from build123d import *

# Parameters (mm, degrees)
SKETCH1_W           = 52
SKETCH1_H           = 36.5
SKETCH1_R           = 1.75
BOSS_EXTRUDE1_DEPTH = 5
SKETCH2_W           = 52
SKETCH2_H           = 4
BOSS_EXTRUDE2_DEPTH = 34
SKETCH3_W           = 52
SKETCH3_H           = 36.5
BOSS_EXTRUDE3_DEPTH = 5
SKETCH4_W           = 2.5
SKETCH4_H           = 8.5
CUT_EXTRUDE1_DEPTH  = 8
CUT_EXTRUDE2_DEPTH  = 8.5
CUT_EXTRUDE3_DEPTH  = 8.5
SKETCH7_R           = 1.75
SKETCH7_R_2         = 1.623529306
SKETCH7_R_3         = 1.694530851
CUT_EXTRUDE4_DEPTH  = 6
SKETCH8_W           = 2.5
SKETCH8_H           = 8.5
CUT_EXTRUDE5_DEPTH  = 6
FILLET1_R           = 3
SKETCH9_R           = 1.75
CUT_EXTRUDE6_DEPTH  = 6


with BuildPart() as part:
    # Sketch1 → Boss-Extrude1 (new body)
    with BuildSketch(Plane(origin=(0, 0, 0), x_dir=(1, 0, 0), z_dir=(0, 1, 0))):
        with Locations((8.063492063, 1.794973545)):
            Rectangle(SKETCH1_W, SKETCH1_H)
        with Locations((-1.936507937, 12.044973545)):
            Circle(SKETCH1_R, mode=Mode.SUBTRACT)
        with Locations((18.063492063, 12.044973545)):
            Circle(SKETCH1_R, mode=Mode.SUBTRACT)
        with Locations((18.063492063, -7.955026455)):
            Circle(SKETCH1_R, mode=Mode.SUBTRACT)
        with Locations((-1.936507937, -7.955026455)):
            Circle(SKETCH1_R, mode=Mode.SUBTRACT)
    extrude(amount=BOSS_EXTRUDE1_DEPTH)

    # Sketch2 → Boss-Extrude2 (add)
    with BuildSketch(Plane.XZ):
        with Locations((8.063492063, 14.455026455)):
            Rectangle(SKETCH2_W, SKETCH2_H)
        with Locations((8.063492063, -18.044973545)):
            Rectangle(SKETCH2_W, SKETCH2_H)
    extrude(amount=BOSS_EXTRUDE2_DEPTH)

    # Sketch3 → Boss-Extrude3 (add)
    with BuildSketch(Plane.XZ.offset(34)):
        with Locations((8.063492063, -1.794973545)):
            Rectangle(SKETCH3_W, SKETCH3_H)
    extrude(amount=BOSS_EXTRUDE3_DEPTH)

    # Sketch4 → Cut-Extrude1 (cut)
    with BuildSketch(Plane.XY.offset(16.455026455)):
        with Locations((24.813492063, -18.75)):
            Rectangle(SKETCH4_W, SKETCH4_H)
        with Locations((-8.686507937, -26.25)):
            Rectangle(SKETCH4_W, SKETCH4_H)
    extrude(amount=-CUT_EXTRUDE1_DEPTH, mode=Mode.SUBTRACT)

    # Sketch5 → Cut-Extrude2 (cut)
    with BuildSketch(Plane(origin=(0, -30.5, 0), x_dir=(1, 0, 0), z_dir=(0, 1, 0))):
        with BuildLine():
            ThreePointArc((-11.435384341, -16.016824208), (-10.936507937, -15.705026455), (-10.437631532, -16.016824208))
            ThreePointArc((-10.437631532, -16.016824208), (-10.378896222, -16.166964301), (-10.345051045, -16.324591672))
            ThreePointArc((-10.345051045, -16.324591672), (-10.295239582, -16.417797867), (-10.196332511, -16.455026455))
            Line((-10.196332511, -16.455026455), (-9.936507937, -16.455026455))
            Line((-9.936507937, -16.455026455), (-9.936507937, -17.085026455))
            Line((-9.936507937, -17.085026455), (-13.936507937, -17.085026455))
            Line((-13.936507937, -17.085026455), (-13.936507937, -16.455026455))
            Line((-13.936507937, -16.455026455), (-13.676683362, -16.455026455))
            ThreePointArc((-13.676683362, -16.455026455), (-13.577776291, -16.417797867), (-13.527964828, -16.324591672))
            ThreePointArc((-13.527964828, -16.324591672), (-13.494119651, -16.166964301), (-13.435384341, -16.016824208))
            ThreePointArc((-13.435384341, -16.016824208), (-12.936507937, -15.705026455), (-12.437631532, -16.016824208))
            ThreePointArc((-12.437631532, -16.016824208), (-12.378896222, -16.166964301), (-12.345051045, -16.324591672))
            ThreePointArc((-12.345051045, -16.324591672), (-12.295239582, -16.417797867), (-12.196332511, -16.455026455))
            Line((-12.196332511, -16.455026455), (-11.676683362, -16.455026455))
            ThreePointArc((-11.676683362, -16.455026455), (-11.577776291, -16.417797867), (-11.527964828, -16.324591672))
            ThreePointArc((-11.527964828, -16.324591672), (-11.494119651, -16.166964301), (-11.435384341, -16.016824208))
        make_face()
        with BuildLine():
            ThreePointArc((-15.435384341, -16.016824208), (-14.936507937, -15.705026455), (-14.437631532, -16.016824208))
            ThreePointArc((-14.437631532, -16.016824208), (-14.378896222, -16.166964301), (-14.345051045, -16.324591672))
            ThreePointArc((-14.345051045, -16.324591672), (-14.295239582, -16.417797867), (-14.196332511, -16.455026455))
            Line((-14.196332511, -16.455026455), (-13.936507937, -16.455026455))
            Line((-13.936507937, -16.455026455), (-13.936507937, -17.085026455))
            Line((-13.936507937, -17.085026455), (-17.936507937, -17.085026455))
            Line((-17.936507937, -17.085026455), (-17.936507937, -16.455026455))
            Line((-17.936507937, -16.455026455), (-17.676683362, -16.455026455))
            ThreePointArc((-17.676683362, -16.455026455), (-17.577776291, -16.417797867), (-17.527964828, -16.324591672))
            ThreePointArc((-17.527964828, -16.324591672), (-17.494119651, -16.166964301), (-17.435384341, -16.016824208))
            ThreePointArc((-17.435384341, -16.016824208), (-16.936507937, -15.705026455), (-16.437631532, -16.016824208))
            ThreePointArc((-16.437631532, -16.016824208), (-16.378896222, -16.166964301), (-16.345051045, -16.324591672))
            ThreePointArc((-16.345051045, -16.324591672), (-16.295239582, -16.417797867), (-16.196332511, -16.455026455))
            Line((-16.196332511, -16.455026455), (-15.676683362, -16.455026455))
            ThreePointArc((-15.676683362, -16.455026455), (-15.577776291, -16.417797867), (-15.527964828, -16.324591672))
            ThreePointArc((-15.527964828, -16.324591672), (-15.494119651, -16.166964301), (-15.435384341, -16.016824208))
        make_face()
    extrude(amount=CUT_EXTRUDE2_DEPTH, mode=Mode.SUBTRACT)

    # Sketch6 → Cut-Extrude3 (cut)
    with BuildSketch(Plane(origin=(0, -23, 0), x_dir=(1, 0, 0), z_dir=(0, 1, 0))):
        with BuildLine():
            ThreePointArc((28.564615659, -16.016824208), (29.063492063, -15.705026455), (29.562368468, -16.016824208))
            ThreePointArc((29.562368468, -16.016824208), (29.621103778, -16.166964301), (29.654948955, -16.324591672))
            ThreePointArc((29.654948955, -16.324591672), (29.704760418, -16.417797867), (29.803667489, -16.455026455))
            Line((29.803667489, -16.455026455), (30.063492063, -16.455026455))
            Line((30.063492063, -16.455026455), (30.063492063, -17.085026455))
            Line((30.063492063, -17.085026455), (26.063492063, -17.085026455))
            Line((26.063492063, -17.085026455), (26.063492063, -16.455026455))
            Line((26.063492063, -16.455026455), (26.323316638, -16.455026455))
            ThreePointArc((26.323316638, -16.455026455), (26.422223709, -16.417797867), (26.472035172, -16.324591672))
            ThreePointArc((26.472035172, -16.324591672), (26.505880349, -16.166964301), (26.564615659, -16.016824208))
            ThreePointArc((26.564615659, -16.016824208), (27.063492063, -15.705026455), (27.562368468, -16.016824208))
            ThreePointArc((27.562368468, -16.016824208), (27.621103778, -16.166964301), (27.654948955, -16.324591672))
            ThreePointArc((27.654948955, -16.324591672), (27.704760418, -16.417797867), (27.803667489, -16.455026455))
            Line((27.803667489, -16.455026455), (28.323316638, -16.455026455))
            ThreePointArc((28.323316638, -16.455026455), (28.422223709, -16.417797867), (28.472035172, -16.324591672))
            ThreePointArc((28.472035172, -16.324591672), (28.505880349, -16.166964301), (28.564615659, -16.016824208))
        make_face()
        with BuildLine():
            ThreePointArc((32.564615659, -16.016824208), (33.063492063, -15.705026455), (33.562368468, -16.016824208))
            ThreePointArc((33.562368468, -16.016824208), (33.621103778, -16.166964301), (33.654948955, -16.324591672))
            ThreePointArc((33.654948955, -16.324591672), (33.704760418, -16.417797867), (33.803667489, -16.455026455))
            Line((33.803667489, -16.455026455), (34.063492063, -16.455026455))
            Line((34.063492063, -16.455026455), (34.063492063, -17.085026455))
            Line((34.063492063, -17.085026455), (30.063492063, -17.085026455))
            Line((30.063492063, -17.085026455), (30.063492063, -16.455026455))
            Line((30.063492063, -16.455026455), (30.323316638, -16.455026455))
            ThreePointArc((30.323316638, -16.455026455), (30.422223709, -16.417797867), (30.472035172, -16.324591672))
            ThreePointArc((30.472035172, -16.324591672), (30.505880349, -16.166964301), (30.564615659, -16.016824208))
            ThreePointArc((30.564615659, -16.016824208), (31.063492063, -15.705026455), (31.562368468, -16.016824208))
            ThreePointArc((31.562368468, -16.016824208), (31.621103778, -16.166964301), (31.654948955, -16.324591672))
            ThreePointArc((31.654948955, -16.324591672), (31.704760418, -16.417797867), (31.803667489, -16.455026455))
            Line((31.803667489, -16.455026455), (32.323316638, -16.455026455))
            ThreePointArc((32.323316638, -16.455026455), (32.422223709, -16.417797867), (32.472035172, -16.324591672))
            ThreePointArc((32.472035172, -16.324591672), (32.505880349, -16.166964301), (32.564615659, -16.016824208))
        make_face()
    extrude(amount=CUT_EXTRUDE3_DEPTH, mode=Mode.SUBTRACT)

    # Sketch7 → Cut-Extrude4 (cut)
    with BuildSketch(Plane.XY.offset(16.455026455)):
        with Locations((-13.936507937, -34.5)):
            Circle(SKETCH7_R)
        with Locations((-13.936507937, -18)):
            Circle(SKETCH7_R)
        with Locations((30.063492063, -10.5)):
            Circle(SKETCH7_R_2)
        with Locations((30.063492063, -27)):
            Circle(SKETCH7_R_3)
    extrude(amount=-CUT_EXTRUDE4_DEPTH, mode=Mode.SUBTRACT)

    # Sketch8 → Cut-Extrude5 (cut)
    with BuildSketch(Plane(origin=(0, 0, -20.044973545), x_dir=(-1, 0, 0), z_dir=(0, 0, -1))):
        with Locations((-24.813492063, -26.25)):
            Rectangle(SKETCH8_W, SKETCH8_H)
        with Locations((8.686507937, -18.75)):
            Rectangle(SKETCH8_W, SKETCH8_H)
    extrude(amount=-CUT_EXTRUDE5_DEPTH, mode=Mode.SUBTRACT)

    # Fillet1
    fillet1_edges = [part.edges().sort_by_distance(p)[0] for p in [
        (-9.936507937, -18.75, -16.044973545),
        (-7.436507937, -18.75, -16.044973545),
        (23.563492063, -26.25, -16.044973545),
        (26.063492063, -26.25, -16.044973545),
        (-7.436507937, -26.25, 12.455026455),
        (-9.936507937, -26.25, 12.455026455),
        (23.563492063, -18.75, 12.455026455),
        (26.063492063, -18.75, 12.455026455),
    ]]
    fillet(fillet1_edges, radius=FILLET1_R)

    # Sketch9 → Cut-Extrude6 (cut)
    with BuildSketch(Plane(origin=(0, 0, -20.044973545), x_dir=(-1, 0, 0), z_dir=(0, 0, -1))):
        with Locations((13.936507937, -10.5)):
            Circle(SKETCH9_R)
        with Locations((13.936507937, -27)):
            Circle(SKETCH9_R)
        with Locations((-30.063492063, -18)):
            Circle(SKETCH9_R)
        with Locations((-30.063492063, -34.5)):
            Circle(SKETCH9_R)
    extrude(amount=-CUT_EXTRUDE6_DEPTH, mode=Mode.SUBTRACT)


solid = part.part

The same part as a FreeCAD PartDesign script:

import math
import FreeCAD as App
import Part
import Sketcher
from FreeCAD import Vector


def edges_at(feature, points):
    """Names of the edges that pass closest to the given points."""
    edges = feature.Shape.Edges
    near = lambda p: min(range(len(edges)), key=lambda i: edges[i].distToShape(Part.Vertex(*p))[0])
    return sorted({f"Edge{near(p) + 1}" for p in points})


def add_polygon(sketch, points):
    """Adds a closed chain of lines whose ends are joined by coincident constraints."""
    first, n = sketch.GeometryCount, len(points)
    for a, b in zip(points, points[1:] + points[:1]):
        sketch.addGeometry(Part.LineSegment(App.Vector(*a, 0), App.Vector(*b, 0)), False)
    for i in range(n):
        sketch.addConstraint(Sketcher.Constraint("Coincident", first + i, 2, first + (i + 1) % n, 1))

doc = App.newDocument("Part")
params = doc.addObject("Spreadsheet::Sheet", "Params")
for row, (alias, value) in enumerate([
    ("sketch1_diameter", "3.5 mm"),
    ("sketch1_width", "52 mm"),
    ("sketch1_height", "36.5 mm"),
    ("pad1_length", "5 mm"),
    ("sketch2_width", "52 mm"),
    ("sketch2_height", "4 mm"),
    ("pad2_length", "34 mm"),
    ("sketch3_width", "52 mm"),
    ("sketch3_height", "36.5 mm"),
    ("pad3_length", "5 mm"),
    ("sketch4_width", "2.5 mm"),
    ("sketch4_height", "8.5 mm"),
    ("pocket1_length", "8 mm"),
    ("sketch5_radius", "1 mm"),
    ("sketch5_width", "8 mm"),
    ("sketch5_radius2", "0.15 mm"),
    ("sketch5_height", "0.63 mm"),
    ("pocket2_length", "8.5 mm"),
    ("sketch6_radius", "1 mm"),
    ("sketch6_width", "8 mm"),
    ("sketch6_radius2", "0.15 mm"),
    ("sketch6_height", "0.63 mm"),
    ("pocket3_length", "8.5 mm"),
    ("sketch7_diameter", "3.5 mm"),
    ("pocket4_length", "6 mm"),
    ("sketch8_width", "2.5 mm"),
    ("sketch8_height", "8.5 mm"),
    ("pocket5_length", "6 mm"),
    ("fillet_radius", "3 mm"),
    ("sketch9_diameter", "3.5 mm"),
    ("pocket6_length", "6 mm"),
], start=1):
    params.set(f"A{row}", alias)
    params.set(f"B{row}", "=" + value)
    params.setAlias(f"B{row}", alias)

body = doc.addObject("PartDesign::Body", "Body")

# Sketch on XZ plane
sketch1 = body.newObject("Sketcher::SketchObject", "Sketch")
sketch1.AttachmentSupport = (doc.getObject("XZ_Plane"), [""])
sketch1.MapMode = "FlatFace"
add_polygon(sketch1, [(-17.9, -20), (-17.9, 16.5), (34.1, 16.5), (34.1, -20)])  # lines 0-3
sketch1.addGeometry(Part.Circle(Vector(-1.9, 8, 0), Vector(0, 0, 1), 1.8), False)  # 4
sketch1.addGeometry(Part.Circle(Vector(18.1, 8, 0), Vector(0, 0, 1), 1.8), False)  # 5
sketch1.addGeometry(Part.Circle(Vector(-1.9, -12, 0), Vector(0, 0, 1), 1.8), False)  # 6
sketch1.addGeometry(Part.Circle(Vector(18.1, -12, 0), Vector(0, 0, 1), 1.8), False)  # 7
sketch1.addConstraint([
    Sketcher.Constraint("Vertical", 0),
    Sketcher.Constraint("Horizontal", 1),
    Sketcher.Constraint("Vertical", 2),
    Sketcher.Constraint("Horizontal", 3),
    Sketcher.Constraint("Equal", 4, 5),
    Sketcher.Constraint("Equal", 5, 6),
    Sketcher.Constraint("Equal", 6, 7),
    Sketcher.Constraint("Horizontal", 4, 3, 5, 3),
    Sketcher.Constraint("Horizontal", 6, 3, 7, 3),
    Sketcher.Constraint("Vertical", 4, 3, 6, 3),
    Sketcher.Constraint("Vertical", 5, 3, 7, 3),
    Sketcher.Constraint("Diameter", 4, 3.5),
    Sketcher.Constraint("DistanceX", 1, 1, 1, 2, 52.0),
    Sketcher.Constraint("DistanceY", 0, 1, 0, 2, 36.5),
    Sketcher.Constraint("DistanceX", 4, 3, 5, 3, 20.0),
    Sketcher.Constraint("DistanceY", 6, 3, 4, 3, 20.0),
    Sketcher.Constraint("DistanceX", 0, 2, 4, 3, 16.0),
    Sketcher.Constraint("DistanceY", 2, 2, 7, 3, 8.0),
    Sketcher.Constraint("DistanceX", 4, 3, -1, 1, 1.936508),
    Sketcher.Constraint("DistanceY", -1, 1, 4, 3, 7.955026),
])
sketch1.setExpression("Constraints[15]", "Params.sketch1_diameter")
sketch1.setExpression("Constraints[16]", "Params.sketch1_width")
sketch1.setExpression("Constraints[17]", "Params.sketch1_height")
pad1 = body.newObject("PartDesign::Pad", "Pad")
pad1.Profile = sketch1
pad1.setExpression("Length", "Params.pad1_length")
pad1.Reversed = True

# Sketch on XZ plane
sketch2 = body.newObject("Sketcher::SketchObject", "Sketch001")
sketch2.AttachmentSupport = (doc.getObject("XZ_Plane"), [""])
sketch2.MapMode = "FlatFace"
add_polygon(sketch2, [(-17.9, 16.5), (-17.9, 12.5), (34.1, 12.5), (34.1, 16.5)])  # lines 0-3
add_polygon(sketch2, [(-17.9, -16), (-17.9, -20), (34.1, -20), (34.1, -16)])  # lines 4-7
sketch2.addConstraint([
    Sketcher.Constraint("Vertical", 0),
    Sketcher.Constraint("Horizontal", 1),
    Sketcher.Constraint("Vertical", 2),
    Sketcher.Constraint("Horizontal", 3),
    Sketcher.Constraint("Vertical", 4),
    Sketcher.Constraint("Horizontal", 5),
    Sketcher.Constraint("Vertical", 6),
    Sketcher.Constraint("Horizontal", 7),
    Sketcher.Constraint("Vertical", 3, 2, 4, 2),
    Sketcher.Constraint("Vertical", 2, 2, 5, 2),
    Sketcher.Constraint("Equal", 2, 4),
    Sketcher.Constraint("DistanceX", 1, 1, 1, 2, 52.0),
    Sketcher.Constraint("DistanceY", 0, 2, 0, 1, 4.0),
    Sketcher.Constraint("DistanceY", 4, 2, 0, 2, 32.5),
    Sketcher.Constraint("DistanceX", 0, 2, -1, 1, 17.936508),
    Sketcher.Constraint("DistanceY", -1, 1, 0, 2, 12.455026),
])
sketch2.setExpression("Constraints[19]", "Params.sketch2_width")
sketch2.setExpression("Constraints[20]", "Params.sketch2_height")
pad2 = body.newObject("PartDesign::Pad", "Pad001")
pad2.Profile = sketch2
pad2.setExpression("Length", "Params.pad2_length")

# Sketch on XZ plane
sketch3 = body.newObject("Sketcher::SketchObject", "Sketch002")
sketch3.AttachmentSupport = (doc.getObject("XZ_Plane"), [""])
sketch3.MapMode = "FlatFace"
sketch3.AttachmentOffset = App.Placement(Vector(0, 0, 34), App.Rotation())
add_polygon(sketch3, [(-18, 16), (-18, -20), (34, -20), (34, 16)])  # lines 0-3
sketch3.addConstraint([
    Sketcher.Constraint("Vertical", 0),
    Sketcher.Constraint("Horizontal", 1),
    Sketcher.Constraint("Vertical", 2),
    Sketcher.Constraint("Horizontal", 3),
    Sketcher.Constraint("DistanceX", 1, 1, 1, 2, 52.0),
    Sketcher.Constraint("DistanceY", 0, 2, 0, 1, 36.5),
    Sketcher.Constraint("DistanceX", 0, 2, -1, 1, 17.936508),
    Sketcher.Constraint("DistanceY", 0, 2, -1, 1, 20.044974),
])
sketch3.setExpression("Constraints[8]", "Params.sketch3_width")
sketch3.setExpression("Constraints[9]", "Params.sketch3_height")
pad3 = body.newObject("PartDesign::Pad", "Pad002")
pad3.Profile = sketch3
pad3.setExpression("Length", "Params.pad3_length")

# Sketch on XY plane
sketch4 = body.newObject("Sketcher::SketchObject", "Sketch003")
sketch4.AttachmentSupport = (doc.getObject("XY_Plane"), [""])
sketch4.MapMode = "FlatFace"
sketch4.AttachmentOffset = App.Placement(Vector(0, 0, 16.455026), App.Rotation())
add_polygon(sketch4, [(23.6, -14.5), (23.6, -23), (26.1, -23), (26.1, -14.5)])  # lines 0-3
add_polygon(sketch4, [(-9.9, -22), (-9.9, -30.5), (-7.4, -30.5), (-7.4, -22)])  # lines 4-7
sketch4.addConstraint([
    Sketcher.Constraint("Vertical", 0),
    Sketcher.Constraint("Horizontal", 1),
    Sketcher.Constraint("Vertical", 2),
    Sketcher.Constraint("Horizontal", 3),
    Sketcher.Constraint("Vertical", 4),
    Sketcher.Constraint("Horizontal", 5),
    Sketcher.Constraint("Vertical", 6),
    Sketcher.Constraint("Horizontal", 7),
    Sketcher.Constraint("Equal", 3, 5),
    Sketcher.Constraint("Equal", 2, 4),
    Sketcher.Constraint("DistanceX", 1, 1, 1, 2, 2.5),
    Sketcher.Constraint("DistanceY", 0, 2, 0, 1, 8.5),
    Sketcher.Constraint("DistanceY", 0, 2, -1, 1, 23.0),
    Sketcher.Constraint("DistanceY", 6, 2, -1, 1, 22.0),
    Sketcher.Constraint("DistanceX", 4, 2, 1, 2, 36.0),
    Sketcher.Constraint("DistanceX", -1, 1, 0, 2, 23.563492),
])
sketch4.setExpression("Constraints[18]", "Params.sketch4_width")
sketch4.setExpression("Constraints[19]", "Params.sketch4_height")
pocket1 = body.newObject("PartDesign::Pocket", "Pocket")
pocket1.Profile = sketch4
pocket1.setExpression("Length", "Params.pocket1_length")

# Sketch on XZ plane
sketch5 = body.newObject("Sketcher::SketchObject", "Sketch004")
sketch5.AttachmentSupport = (doc.getObject("XZ_Plane"), [""])
sketch5.MapMode = "FlatFace"
sketch5.AttachmentOffset = App.Placement(Vector(0, 0, 30.5), App.Rotation())
sketch5.addGeometry([
    Part.ArcOfCircle(Part.Circle(Vector(-10.94, 16.26, 0), Vector(0, 0, 1), 0.56), math.radians(-154), math.radians(-26)),  # 0
    Part.ArcOfCircle(Part.Circle(Vector(-10.54, 16.46, 0), Vector(0, 0, 1), 1), math.radians(-172.51), math.radians(-154.01)),  # 1
    Part.ArcOfCircle(Part.Circle(Vector(-11.68, 16.31, 0), Vector(0, 0, 1), 0.15), math.radians(7), math.radians(90)),  # 2
    Part.LineSegment(Vector(-11.68, 16.46, 0), Vector(-12.2, 16.46, 0)),  # 3
    Part.ArcOfCircle(Part.Circle(Vector(-12.2, 16.31, 0), Vector(0, 0, 1), 0.15), math.radians(90), math.radians(173)),  # 4
    Part.ArcOfCircle(Part.Circle(Vector(-13.34, 16.46, 0), Vector(0, 0, 1), 1), math.radians(-25.99), math.radians(-7.49)),  # 5
    Part.ArcOfCircle(Part.Circle(Vector(-12.94, 16.26, 0), Vector(0, 0, 1), 0.56), math.radians(-154), math.radians(-26)),  # 6
    Part.ArcOfCircle(Part.Circle(Vector(-12.54, 16.46, 0), Vector(0, 0, 1), 1), math.radians(-172.51), math.radians(-154.01)),  # 7
    Part.ArcOfCircle(Part.Circle(Vector(-13.68, 16.31, 0), Vector(0, 0, 1), 0.15), math.radians(7), math.radians(90)),  # 8
    Part.LineSegment(Vector(-13.68, 16.46, 0), Vector(-14.2, 16.46, 0)),  # 9
    Part.ArcOfCircle(Part.Circle(Vector(-14.2, 16.31, 0), Vector(0, 0, 1), 0.15), math.radians(90), math.radians(173)),  # 10
    Part.ArcOfCircle(Part.Circle(Vector(-15.34, 16.46, 0), Vector(0, 0, 1), 1), math.radians(-25.99), math.radians(-7.49)),  # 11
    Part.ArcOfCircle(Part.Circle(Vector(-14.94, 16.26, 0), Vector(0, 0, 1), 0.56), math.radians(-154), math.radians(-26)),  # 12
    Part.ArcOfCircle(Part.Circle(Vector(-14.54, 16.46, 0), Vector(0, 0, 1), 1), math.radians(-172.51), math.radians(-154.01)),  # 13
    Part.ArcOfCircle(Part.Circle(Vector(-15.68, 16.31, 0), Vector(0, 0, 1), 0.15), math.radians(7), math.radians(90)),  # 14
    Part.LineSegment(Vector(-15.68, 16.46, 0), Vector(-16.2, 16.46, 0)),  # 15
    Part.ArcOfCircle(Part.Circle(Vector(-16.2, 16.31, 0), Vector(0, 0, 1), 0.15), math.radians(90), math.radians(173)),  # 16
    Part.ArcOfCircle(Part.Circle(Vector(-17.34, 16.46, 0), Vector(0, 0, 1), 1), math.radians(-25.99), math.radians(-7.49)),  # 17
    Part.ArcOfCircle(Part.Circle(Vector(-16.94, 16.26, 0), Vector(0, 0, 1), 0.56), math.radians(-154), math.radians(-26)),  # 18
    Part.ArcOfCircle(Part.Circle(Vector(-16.54, 16.46, 0), Vector(0, 0, 1), 1), math.radians(-172.51), math.radians(-154.01)),  # 19
    Part.ArcOfCircle(Part.Circle(Vector(-17.68, 16.31, 0), Vector(0, 0, 1), 0.15), math.radians(7), math.radians(90)),  # 20
    Part.LineSegment(Vector(-17.68, 16.46, 0), Vector(-17.94, 16.46, 0)),  # 21
    Part.LineSegment(Vector(-17.94, 16.46, 0), Vector(-17.94, 17.09, 0)),  # 22
    Part.LineSegment(Vector(-17.94, 17.09, 0), Vector(-9.94, 17.09, 0)),  # 23
    Part.LineSegment(Vector(-9.94, 17.09, 0), Vector(-9.94, 16.46, 0)),  # 24
    Part.LineSegment(Vector(-9.94, 16.46, 0), Vector(-10.2, 16.46, 0)),  # 25
    Part.ArcOfCircle(Part.Circle(Vector(-10.2, 16.31, 0), Vector(0, 0, 1), 0.15), math.radians(90), math.radians(173)),  # 26
    Part.ArcOfCircle(Part.Circle(Vector(-11.34, 16.46, 0), Vector(0, 0, 1), 1), math.radians(-25.99), math.radians(-7.49)),  # 27
], False)
sketch5.addConstraint([
    Sketcher.Constraint("Tangent", 0, 1, 1, 2),
    Sketcher.Constraint("Tangent", 1, 1, 2, 1),
    Sketcher.Constraint("Tangent", 2, 2, 3, 1),
    Sketcher.Constraint("Tangent", 3, 2, 4, 1),
    Sketcher.Constraint("Tangent", 4, 2, 5, 2),
    Sketcher.Constraint("Tangent", 5, 1, 6, 2),
    Sketcher.Constraint("Tangent", 6, 1, 7, 2),
    Sketcher.Constraint("Tangent", 7, 1, 8, 1),
    Sketcher.Constraint("Tangent", 8, 2, 9, 1),
    Sketcher.Constraint("Tangent", 9, 2, 10, 1),
    Sketcher.Constraint("Tangent", 10, 2, 11, 2),
    Sketcher.Constraint("Tangent", 11, 1, 12, 2),
    Sketcher.Constraint("Tangent", 12, 1, 13, 2),
    Sketcher.Constraint("Tangent", 13, 1, 14, 1),
    Sketcher.Constraint("Tangent", 14, 2, 15, 1),
    Sketcher.Constraint("Tangent", 15, 2, 16, 1),
    Sketcher.Constraint("Tangent", 16, 2, 17, 2),
    Sketcher.Constraint("Tangent", 17, 1, 18, 2),
    Sketcher.Constraint("Tangent", 18, 1, 19, 2),
    Sketcher.Constraint("Tangent", 19, 1, 20, 1),
    Sketcher.Constraint("Tangent", 20, 2, 21, 1),
    Sketcher.Constraint("Coincident", 21, 2, 22, 1),
    Sketcher.Constraint("Coincident", 22, 2, 23, 1),
    Sketcher.Constraint("Coincident", 23, 2, 24, 1),
    Sketcher.Constraint("Coincident", 24, 2, 25, 1),
    Sketcher.Constraint("Tangent", 25, 2, 26, 1),
    Sketcher.Constraint("Tangent", 26, 2, 27, 2),
    Sketcher.Constraint("Tangent", 27, 1, 0, 2),
    Sketcher.Constraint("Horizontal", 3),
    Sketcher.Constraint("Horizontal", 9),
    Sketcher.Constraint("Horizontal", 15),
    Sketcher.Constraint("Horizontal", 21),
    Sketcher.Constraint("Vertical", 22),
    Sketcher.Constraint("Horizontal", 23),
    Sketcher.Constraint("Vertical", 24),
    Sketcher.Constraint("Horizontal", 25),
    Sketcher.Constraint("Equal", 2, 4),
    Sketcher.Constraint("Equal", 1, 5),
    Sketcher.Constraint("Equal", 0, 6),
    Sketcher.Constraint("Equal", 5, 7),
    Sketcher.Constraint("Equal", 4, 8),
    Sketcher.Constraint("Equal", 8, 10),
    Sketcher.Constraint("Equal", 7, 11),
    Sketcher.Constraint("Equal", 6, 12),
    Sketcher.Constraint("Equal", 11, 13),
    Sketcher.Constraint("Equal", 10, 14),
    Sketcher.Constraint("Equal", 14, 16),
    Sketcher.Constraint("Equal", 13, 17),
    Sketcher.Constraint("Equal", 12, 18),
    Sketcher.Constraint("Equal", 17, 19),
    Sketcher.Constraint("Equal", 16, 20),
    Sketcher.Constraint("Equal", 20, 26),
    Sketcher.Constraint("Equal", 19, 27),
    Sketcher.Constraint("Horizontal", 1, 3, 5, 3),
    Sketcher.Constraint("Horizontal", 0, 3, 6, 3),
    Sketcher.Constraint("Horizontal", 5, 3, 7, 3),
    Sketcher.Constraint("Horizontal", 4, 3, 8, 3),
    Sketcher.Constraint("Horizontal", 7, 3, 11, 3),
    Sketcher.Constraint("Horizontal", 6, 3, 12, 3),
    Sketcher.Constraint("Horizontal", 11, 3, 13, 3),
    Sketcher.Constraint("Horizontal", 10, 3, 14, 3),
    Sketcher.Constraint("Horizontal", 13, 3, 17, 3),
    Sketcher.Constraint("Horizontal", 12, 3, 18, 3),
    Sketcher.Constraint("Horizontal", 17, 3, 19, 3),
    Sketcher.Constraint("Horizontal", 16, 3, 20, 3),
    Sketcher.Constraint("Horizontal", 20, 3, 26, 3),
    Sketcher.Constraint("Horizontal", 19, 3, 27, 3),
    Sketcher.Constraint("Horizontal", 27, 3, 2, 2),
    Sketcher.Constraint("Equal", 3, 9),
    Sketcher.Constraint("Equal", 9, 15),
    Sketcher.Constraint("Equal", 21, 25),
    Sketcher.Constraint("Radius", 1, 1.0),
    Sketcher.Constraint("DistanceX", 23, 1, 23, 2, 8.0),
    Sketcher.Constraint("Radius", 2, 0.15),
    Sketcher.Constraint("Radius", 0, 0.555),
    Sketcher.Constraint("DistanceX", 6, 3, 0, 3, 2.0),
    Sketcher.Constraint("DistanceY", 22, 1, 22, 2, 0.63),
    Sketcher.Constraint("DistanceX", 0, 3, 1, 3, 0.4),
    Sketcher.Constraint("DistanceY", -1, 1, 1, 1, 16.324592),
    Sketcher.Constraint("DistanceX", 4, 2, -1, 1, 12.345051),
])
sketch5.setExpression("Constraints[71]", "Params.sketch5_radius")
sketch5.setExpression("Constraints[72]", "Params.sketch5_width")
sketch5.setExpression("Constraints[73]", "Params.sketch5_radius2")
sketch5.setExpression("Constraints[76]", "Params.sketch5_height")
pocket2 = body.newObject("PartDesign::Pocket", "Pocket001")
pocket2.Profile = sketch5
pocket2.setExpression("Length", "Params.pocket2_length")

# Sketch on XZ plane
sketch6 = body.newObject("Sketcher::SketchObject", "Sketch005")
sketch6.AttachmentSupport = (doc.getObject("XZ_Plane"), [""])
sketch6.MapMode = "FlatFace"
sketch6.AttachmentOffset = App.Placement(Vector(0, 0, 23), App.Rotation())
sketch6.addGeometry([
    Part.ArcOfCircle(Part.Circle(Vector(29.06, 16.26, 0), Vector(0, 0, 1), 0.56), math.radians(-154), math.radians(-26)),  # 0
    Part.ArcOfCircle(Part.Circle(Vector(29.46, 16.46, 0), Vector(0, 0, 1), 1), math.radians(-172.51), math.radians(-154.01)),  # 1
    Part.ArcOfCircle(Part.Circle(Vector(28.32, 16.31, 0), Vector(0, 0, 1), 0.15), math.radians(7), math.radians(90)),  # 2
    Part.LineSegment(Vector(28.32, 16.46, 0), Vector(27.8, 16.46, 0)),  # 3
    Part.ArcOfCircle(Part.Circle(Vector(27.8, 16.31, 0), Vector(0, 0, 1), 0.15), math.radians(90), math.radians(173)),  # 4
    Part.ArcOfCircle(Part.Circle(Vector(26.66, 16.46, 0), Vector(0, 0, 1), 1), math.radians(-25.99), math.radians(-7.49)),  # 5
    Part.ArcOfCircle(Part.Circle(Vector(27.06, 16.26, 0), Vector(0, 0, 1), 0.56), math.radians(-154), math.radians(-26)),  # 6
    Part.ArcOfCircle(Part.Circle(Vector(27.46, 16.46, 0), Vector(0, 0, 1), 1), math.radians(-172.51), math.radians(-154.01)),  # 7
    Part.ArcOfCircle(Part.Circle(Vector(26.32, 16.31, 0), Vector(0, 0, 1), 0.15), math.radians(7), math.radians(90)),  # 8
    Part.LineSegment(Vector(26.32, 16.46, 0), Vector(26.06, 16.46, 0)),  # 9
    Part.LineSegment(Vector(26.06, 16.46, 0), Vector(26.06, 17.09, 0)),  # 10
    Part.LineSegment(Vector(26.06, 17.09, 0), Vector(34.06, 17.09, 0)),  # 11
    Part.LineSegment(Vector(34.06, 17.09, 0), Vector(34.06, 16.46, 0)),  # 12
    Part.LineSegment(Vector(34.06, 16.46, 0), Vector(33.8, 16.46, 0)),  # 13
    Part.ArcOfCircle(Part.Circle(Vector(33.8, 16.31, 0), Vector(0, 0, 1), 0.15), math.radians(90), math.radians(173)),  # 14
    Part.ArcOfCircle(Part.Circle(Vector(32.66, 16.46, 0), Vector(0, 0, 1), 1), math.radians(-25.99), math.radians(-7.49)),  # 15
    Part.ArcOfCircle(Part.Circle(Vector(33.06, 16.26, 0), Vector(0, 0, 1), 0.56), math.radians(-154), math.radians(-26)),  # 16
    Part.ArcOfCircle(Part.Circle(Vector(33.46, 16.46, 0), Vector(0, 0, 1), 1), math.radians(-172.51), math.radians(-154.01)),  # 17
    Part.ArcOfCircle(Part.Circle(Vector(32.32, 16.31, 0), Vector(0, 0, 1), 0.15), math.radians(7), math.radians(90)),  # 18
    Part.LineSegment(Vector(32.32, 16.46, 0), Vector(31.8, 16.46, 0)),  # 19
    Part.ArcOfCircle(Part.Circle(Vector(31.8, 16.31, 0), Vector(0, 0, 1), 0.15), math.radians(90), math.radians(173)),  # 20
    Part.ArcOfCircle(Part.Circle(Vector(30.66, 16.46, 0), Vector(0, 0, 1), 1), math.radians(-25.99), math.radians(-7.49)),  # 21
    Part.ArcOfCircle(Part.Circle(Vector(31.06, 16.26, 0), Vector(0, 0, 1), 0.56), math.radians(-154), math.radians(-26)),  # 22
    Part.ArcOfCircle(Part.Circle(Vector(31.46, 16.46, 0), Vector(0, 0, 1), 1), math.radians(-172.51), math.radians(-154.01)),  # 23
    Part.ArcOfCircle(Part.Circle(Vector(30.32, 16.31, 0), Vector(0, 0, 1), 0.15), math.radians(7), math.radians(90)),  # 24
    Part.LineSegment(Vector(30.32, 16.46, 0), Vector(29.8, 16.46, 0)),  # 25
    Part.ArcOfCircle(Part.Circle(Vector(29.8, 16.31, 0), Vector(0, 0, 1), 0.15), math.radians(90), math.radians(173)),  # 26
    Part.ArcOfCircle(Part.Circle(Vector(28.66, 16.46, 0), Vector(0, 0, 1), 1), math.radians(-25.99), math.radians(-7.49)),  # 27
], False)
sketch6.addConstraint([
    Sketcher.Constraint("Tangent", 0, 1, 1, 2),
    Sketcher.Constraint("Tangent", 1, 1, 2, 1),
    Sketcher.Constraint("Tangent", 2, 2, 3, 1),
    Sketcher.Constraint("Tangent", 3, 2, 4, 1),
    Sketcher.Constraint("Tangent", 4, 2, 5, 2),
    Sketcher.Constraint("Tangent", 5, 1, 6, 2),
    Sketcher.Constraint("Tangent", 6, 1, 7, 2),
    Sketcher.Constraint("Tangent", 7, 1, 8, 1),
    Sketcher.Constraint("Tangent", 8, 2, 9, 1),
    Sketcher.Constraint("Coincident", 9, 2, 10, 1),
    Sketcher.Constraint("Coincident", 10, 2, 11, 1),
    Sketcher.Constraint("Coincident", 11, 2, 12, 1),
    Sketcher.Constraint("Coincident", 12, 2, 13, 1),
    Sketcher.Constraint("Tangent", 13, 2, 14, 1),
    Sketcher.Constraint("Tangent", 14, 2, 15, 2),
    Sketcher.Constraint("Tangent", 15, 1, 16, 2),
    Sketcher.Constraint("Tangent", 16, 1, 17, 2),
    Sketcher.Constraint("Tangent", 17, 1, 18, 1),
    Sketcher.Constraint("Tangent", 18, 2, 19, 1),
    Sketcher.Constraint("Tangent", 19, 2, 20, 1),
    Sketcher.Constraint("Tangent", 20, 2, 21, 2),
    Sketcher.Constraint("Tangent", 21, 1, 22, 2),
    Sketcher.Constraint("Tangent", 22, 1, 23, 2),
    Sketcher.Constraint("Tangent", 23, 1, 24, 1),
    Sketcher.Constraint("Tangent", 24, 2, 25, 1),
    Sketcher.Constraint("Tangent", 25, 2, 26, 1),
    Sketcher.Constraint("Tangent", 26, 2, 27, 2),
    Sketcher.Constraint("Tangent", 27, 1, 0, 2),
    Sketcher.Constraint("Horizontal", 3),
    Sketcher.Constraint("Horizontal", 9),
    Sketcher.Constraint("Vertical", 10),
    Sketcher.Constraint("Horizontal", 11),
    Sketcher.Constraint("Vertical", 12),
    Sketcher.Constraint("Horizontal", 13),
    Sketcher.Constraint("Horizontal", 19),
    Sketcher.Constraint("Horizontal", 25),
    Sketcher.Constraint("Equal", 2, 4),
    Sketcher.Constraint("Equal", 1, 5),
    Sketcher.Constraint("Equal", 0, 6),
    Sketcher.Constraint("Equal", 5, 7),
    Sketcher.Constraint("Equal", 4, 8),
    Sketcher.Constraint("Equal", 8, 14),
    Sketcher.Constraint("Equal", 7, 15),
    Sketcher.Constraint("Equal", 6, 16),
    Sketcher.Constraint("Equal", 15, 17),
    Sketcher.Constraint("Equal", 14, 18),
    Sketcher.Constraint("Equal", 18, 20),
    Sketcher.Constraint("Equal", 17, 21),
    Sketcher.Constraint("Equal", 16, 22),
    Sketcher.Constraint("Equal", 21, 23),
    Sketcher.Constraint("Equal", 20, 24),
    Sketcher.Constraint("Equal", 24, 26),
    Sketcher.Constraint("Equal", 23, 27),
    Sketcher.Constraint("Horizontal", 1, 3, 5, 3),
    Sketcher.Constraint("Horizontal", 0, 3, 6, 3),
    Sketcher.Constraint("Horizontal", 5, 3, 7, 3),
    Sketcher.Constraint("Horizontal", 4, 3, 8, 3),
    Sketcher.Constraint("Horizontal", 8, 3, 14, 3),
    Sketcher.Constraint("Horizontal", 7, 3, 15, 3),
    Sketcher.Constraint("Horizontal", 6, 3, 16, 3),
    Sketcher.Constraint("Horizontal", 15, 3, 17, 3),
    Sketcher.Constraint("Horizontal", 14, 3, 18, 3),
    Sketcher.Constraint("Horizontal", 17, 3, 21, 3),
    Sketcher.Constraint("Horizontal", 16, 3, 22, 3),
    Sketcher.Constraint("Horizontal", 21, 3, 23, 3),
    Sketcher.Constraint("Horizontal", 20, 3, 24, 3),
    Sketcher.Constraint("Horizontal", 23, 3, 27, 3),
    Sketcher.Constraint("Horizontal", 27, 3, 2, 2),
    Sketcher.Constraint("Equal", 9, 13),
    Sketcher.Constraint("Equal", 3, 19),
    Sketcher.Constraint("Equal", 19, 25),
    Sketcher.Constraint("Radius", 1, 1.0),
    Sketcher.Constraint("DistanceX", 11, 1, 11, 2, 8.0),
    Sketcher.Constraint("Radius", 2, 0.15),
    Sketcher.Constraint("Radius", 0, 0.555),
    Sketcher.Constraint("DistanceX", 6, 3, 0, 3, 2.0),
    Sketcher.Constraint("DistanceY", 10, 1, 10, 2, 0.63),
    Sketcher.Constraint("DistanceX", 0, 3, 1, 3, 0.4),
    Sketcher.Constraint("DistanceY", -1, 1, 1, 1, 16.324592),
    Sketcher.Constraint("DistanceX", -1, 1, 4, 2, 27.654949),
])
sketch6.setExpression("Constraints[71]", "Params.sketch6_radius")
sketch6.setExpression("Constraints[72]", "Params.sketch6_width")
sketch6.setExpression("Constraints[73]", "Params.sketch6_radius2")
sketch6.setExpression("Constraints[76]", "Params.sketch6_height")
pocket3 = body.newObject("PartDesign::Pocket", "Pocket002")
pocket3.Profile = sketch6
pocket3.setExpression("Length", "Params.pocket3_length")

# Sketch on XY plane
sketch7 = body.newObject("Sketcher::SketchObject", "Sketch006")
sketch7.AttachmentSupport = (doc.getObject("XY_Plane"), [""])
sketch7.MapMode = "FlatFace"
sketch7.AttachmentOffset = App.Placement(Vector(0, 0, 16.455026), App.Rotation())
sketch7.addGeometry([
    Part.Circle(Vector(-13.9, -34.5, 0), Vector(0, 0, 1), 1.8),
    Part.Circle(Vector(-13.9, -18, 0), Vector(0, 0, 1), 1.8),
    Part.Circle(Vector(30.1, -10.5, 0), Vector(0, 0, 1), 1.6),
    Part.Circle(Vector(30.1, -27, 0), Vector(0, 0, 1), 1.7),
], False)
sketch7.addConstraint([
    Sketcher.Constraint("Equal", 0, 1),
    Sketcher.Constraint("Vertical", 0, 3, 1, 3),
    Sketcher.Constraint("Vertical", 2, 3, 3, 3),
    Sketcher.Constraint("Diameter", 0, 3.5),
    Sketcher.Constraint("DistanceY", 1, 3, -1, 1, 18.0),
    Sketcher.Constraint("DistanceY", 3, 3, -1, 1, 27.0),
    Sketcher.Constraint("DistanceX", 1, 3, 2, 3, 44.0),
    Sketcher.Constraint("DistanceY", 0, 3, 2, 3, 24.0),
    Sketcher.Constraint("DistanceY", 0, 3, -1, 1, 34.5),
    Sketcher.Constraint("Diameter", 2, 3.247059),
    Sketcher.Constraint("Diameter", 3, 3.389062),
    Sketcher.Constraint("DistanceX", 0, 3, -1, 1, 13.936508),
])
sketch7.setExpression("Constraints[3]", "Params.sketch7_diameter")
pocket4 = body.newObject("PartDesign::Pocket", "Pocket003")
pocket4.Profile = sketch7
pocket4.setExpression("Length", "Params.pocket4_length")

# Sketch on XY plane
sketch8 = body.newObject("Sketcher::SketchObject", "Sketch007")
sketch8.AttachmentSupport = (doc.getObject("XY_Plane"), [""])
sketch8.MapMode = "FlatFace"
sketch8.AttachmentOffset = App.Placement(Vector(0, 0, -20.044974), App.Rotation())
add_polygon(sketch8, [(26.1, -22), (26.1, -30.5), (23.6, -30.5), (23.6, -22)])  # lines 0-3
add_polygon(sketch8, [(-7.4, -14.5), (-7.4, -23), (-9.9, -23), (-9.9, -14.5)])  # lines 4-7
sketch8.addConstraint([
    Sketcher.Constraint("Vertical", 0),
    Sketcher.Constraint("Horizontal", 1),
    Sketcher.Constraint("Vertical", 2),
    Sketcher.Constraint("Horizontal", 3),
    Sketcher.Constraint("Vertical", 4),
    Sketcher.Constraint("Horizontal", 5),
    Sketcher.Constraint("Vertical", 6),
    Sketcher.Constraint("Horizontal", 7),
    Sketcher.Constraint("Equal", 3, 5),
    Sketcher.Constraint("Equal", 2, 4),
    Sketcher.Constraint("DistanceX", 1, 2, 1, 1, 2.5),
    Sketcher.Constraint("DistanceY", 0, 2, 0, 1, 8.5),
    Sketcher.Constraint("DistanceY", 2, 2, -1, 1, 22.0),
    Sketcher.Constraint("DistanceY", 4, 2, -1, 1, 23.0),
    Sketcher.Constraint("DistanceX", 4, 2, 2, 2, 31.0),
    Sketcher.Constraint("DistanceX", -1, 1, 0, 2, 26.063492),
])
sketch8.setExpression("Constraints[18]", "Params.sketch8_width")
sketch8.setExpression("Constraints[19]", "Params.sketch8_height")
pocket5 = body.newObject("PartDesign::Pocket", "Pocket004")
pocket5.Profile = sketch8
pocket5.setExpression("Length", "Params.pocket5_length")
pocket5.Reversed = True
doc.recompute()

fillet = body.newObject("PartDesign::Fillet", "Fillet")
fillet.Base = (pocket5, edges_at(pocket5, [
    (-9.937, -18.75, -16.045),
    (-7.437, -18.75, -16.045),
    (23.563, -26.25, -16.045),
    (26.063, -26.25, -16.045),
    (-7.437, -26.25, 12.455),
    (-9.937, -26.25, 12.455),
    (23.563, -18.75, 12.455),
    (26.063, -18.75, 12.455),
]))
fillet.setExpression("Radius", "Params.fillet_radius")

# Sketch on XY plane
sketch9 = body.newObject("Sketcher::SketchObject", "Sketch008")
sketch9.AttachmentSupport = (doc.getObject("XY_Plane"), [""])
sketch9.MapMode = "FlatFace"
sketch9.AttachmentOffset = App.Placement(Vector(0, 0, -20.044974), App.Rotation())
sketch9.addGeometry([
    Part.Circle(Vector(-13.9, -10.5, 0), Vector(0, 0, 1), 1.8),
    Part.Circle(Vector(-13.9, -27, 0), Vector(0, 0, 1), 1.8),
    Part.Circle(Vector(30.1, -18, 0), Vector(0, 0, 1), 1.8),
    Part.Circle(Vector(30.1, -34.5, 0), Vector(0, 0, 1), 1.8),
], False)
sketch9.addConstraint([
    Sketcher.Constraint("Equal", 0, 1),
    Sketcher.Constraint("Equal", 1, 2),
    Sketcher.Constraint("Equal", 2, 3),
    Sketcher.Constraint("Vertical", 0, 3, 1, 3),
    Sketcher.Constraint("Vertical", 2, 3, 3, 3),
    Sketcher.Constraint("Diameter", 0, 3.5),
    Sketcher.Constraint("DistanceY", 1, 3, -1, 1, 27.0),
    Sketcher.Constraint("DistanceY", 2, 3, -1, 1, 18.0),
    Sketcher.Constraint("DistanceX", 0, 3, 2, 3, 44.0),
    Sketcher.Constraint("DistanceY", 3, 3, 0, 3, 24.0),
    Sketcher.Constraint("DistanceY", 0, 3, -1, 1, 10.5),
    Sketcher.Constraint("DistanceX", 0, 3, -1, 1, 13.936508),
])
sketch9.setExpression("Constraints[5]", "Params.sketch9_diameter")
pocket6 = body.newObject("PartDesign::Pocket", "Pocket005")
pocket6.Profile = sketch9
pocket6.setExpression("Length", "Params.pocket6_length")
pocket6.Reversed = True

doc.recompute()
